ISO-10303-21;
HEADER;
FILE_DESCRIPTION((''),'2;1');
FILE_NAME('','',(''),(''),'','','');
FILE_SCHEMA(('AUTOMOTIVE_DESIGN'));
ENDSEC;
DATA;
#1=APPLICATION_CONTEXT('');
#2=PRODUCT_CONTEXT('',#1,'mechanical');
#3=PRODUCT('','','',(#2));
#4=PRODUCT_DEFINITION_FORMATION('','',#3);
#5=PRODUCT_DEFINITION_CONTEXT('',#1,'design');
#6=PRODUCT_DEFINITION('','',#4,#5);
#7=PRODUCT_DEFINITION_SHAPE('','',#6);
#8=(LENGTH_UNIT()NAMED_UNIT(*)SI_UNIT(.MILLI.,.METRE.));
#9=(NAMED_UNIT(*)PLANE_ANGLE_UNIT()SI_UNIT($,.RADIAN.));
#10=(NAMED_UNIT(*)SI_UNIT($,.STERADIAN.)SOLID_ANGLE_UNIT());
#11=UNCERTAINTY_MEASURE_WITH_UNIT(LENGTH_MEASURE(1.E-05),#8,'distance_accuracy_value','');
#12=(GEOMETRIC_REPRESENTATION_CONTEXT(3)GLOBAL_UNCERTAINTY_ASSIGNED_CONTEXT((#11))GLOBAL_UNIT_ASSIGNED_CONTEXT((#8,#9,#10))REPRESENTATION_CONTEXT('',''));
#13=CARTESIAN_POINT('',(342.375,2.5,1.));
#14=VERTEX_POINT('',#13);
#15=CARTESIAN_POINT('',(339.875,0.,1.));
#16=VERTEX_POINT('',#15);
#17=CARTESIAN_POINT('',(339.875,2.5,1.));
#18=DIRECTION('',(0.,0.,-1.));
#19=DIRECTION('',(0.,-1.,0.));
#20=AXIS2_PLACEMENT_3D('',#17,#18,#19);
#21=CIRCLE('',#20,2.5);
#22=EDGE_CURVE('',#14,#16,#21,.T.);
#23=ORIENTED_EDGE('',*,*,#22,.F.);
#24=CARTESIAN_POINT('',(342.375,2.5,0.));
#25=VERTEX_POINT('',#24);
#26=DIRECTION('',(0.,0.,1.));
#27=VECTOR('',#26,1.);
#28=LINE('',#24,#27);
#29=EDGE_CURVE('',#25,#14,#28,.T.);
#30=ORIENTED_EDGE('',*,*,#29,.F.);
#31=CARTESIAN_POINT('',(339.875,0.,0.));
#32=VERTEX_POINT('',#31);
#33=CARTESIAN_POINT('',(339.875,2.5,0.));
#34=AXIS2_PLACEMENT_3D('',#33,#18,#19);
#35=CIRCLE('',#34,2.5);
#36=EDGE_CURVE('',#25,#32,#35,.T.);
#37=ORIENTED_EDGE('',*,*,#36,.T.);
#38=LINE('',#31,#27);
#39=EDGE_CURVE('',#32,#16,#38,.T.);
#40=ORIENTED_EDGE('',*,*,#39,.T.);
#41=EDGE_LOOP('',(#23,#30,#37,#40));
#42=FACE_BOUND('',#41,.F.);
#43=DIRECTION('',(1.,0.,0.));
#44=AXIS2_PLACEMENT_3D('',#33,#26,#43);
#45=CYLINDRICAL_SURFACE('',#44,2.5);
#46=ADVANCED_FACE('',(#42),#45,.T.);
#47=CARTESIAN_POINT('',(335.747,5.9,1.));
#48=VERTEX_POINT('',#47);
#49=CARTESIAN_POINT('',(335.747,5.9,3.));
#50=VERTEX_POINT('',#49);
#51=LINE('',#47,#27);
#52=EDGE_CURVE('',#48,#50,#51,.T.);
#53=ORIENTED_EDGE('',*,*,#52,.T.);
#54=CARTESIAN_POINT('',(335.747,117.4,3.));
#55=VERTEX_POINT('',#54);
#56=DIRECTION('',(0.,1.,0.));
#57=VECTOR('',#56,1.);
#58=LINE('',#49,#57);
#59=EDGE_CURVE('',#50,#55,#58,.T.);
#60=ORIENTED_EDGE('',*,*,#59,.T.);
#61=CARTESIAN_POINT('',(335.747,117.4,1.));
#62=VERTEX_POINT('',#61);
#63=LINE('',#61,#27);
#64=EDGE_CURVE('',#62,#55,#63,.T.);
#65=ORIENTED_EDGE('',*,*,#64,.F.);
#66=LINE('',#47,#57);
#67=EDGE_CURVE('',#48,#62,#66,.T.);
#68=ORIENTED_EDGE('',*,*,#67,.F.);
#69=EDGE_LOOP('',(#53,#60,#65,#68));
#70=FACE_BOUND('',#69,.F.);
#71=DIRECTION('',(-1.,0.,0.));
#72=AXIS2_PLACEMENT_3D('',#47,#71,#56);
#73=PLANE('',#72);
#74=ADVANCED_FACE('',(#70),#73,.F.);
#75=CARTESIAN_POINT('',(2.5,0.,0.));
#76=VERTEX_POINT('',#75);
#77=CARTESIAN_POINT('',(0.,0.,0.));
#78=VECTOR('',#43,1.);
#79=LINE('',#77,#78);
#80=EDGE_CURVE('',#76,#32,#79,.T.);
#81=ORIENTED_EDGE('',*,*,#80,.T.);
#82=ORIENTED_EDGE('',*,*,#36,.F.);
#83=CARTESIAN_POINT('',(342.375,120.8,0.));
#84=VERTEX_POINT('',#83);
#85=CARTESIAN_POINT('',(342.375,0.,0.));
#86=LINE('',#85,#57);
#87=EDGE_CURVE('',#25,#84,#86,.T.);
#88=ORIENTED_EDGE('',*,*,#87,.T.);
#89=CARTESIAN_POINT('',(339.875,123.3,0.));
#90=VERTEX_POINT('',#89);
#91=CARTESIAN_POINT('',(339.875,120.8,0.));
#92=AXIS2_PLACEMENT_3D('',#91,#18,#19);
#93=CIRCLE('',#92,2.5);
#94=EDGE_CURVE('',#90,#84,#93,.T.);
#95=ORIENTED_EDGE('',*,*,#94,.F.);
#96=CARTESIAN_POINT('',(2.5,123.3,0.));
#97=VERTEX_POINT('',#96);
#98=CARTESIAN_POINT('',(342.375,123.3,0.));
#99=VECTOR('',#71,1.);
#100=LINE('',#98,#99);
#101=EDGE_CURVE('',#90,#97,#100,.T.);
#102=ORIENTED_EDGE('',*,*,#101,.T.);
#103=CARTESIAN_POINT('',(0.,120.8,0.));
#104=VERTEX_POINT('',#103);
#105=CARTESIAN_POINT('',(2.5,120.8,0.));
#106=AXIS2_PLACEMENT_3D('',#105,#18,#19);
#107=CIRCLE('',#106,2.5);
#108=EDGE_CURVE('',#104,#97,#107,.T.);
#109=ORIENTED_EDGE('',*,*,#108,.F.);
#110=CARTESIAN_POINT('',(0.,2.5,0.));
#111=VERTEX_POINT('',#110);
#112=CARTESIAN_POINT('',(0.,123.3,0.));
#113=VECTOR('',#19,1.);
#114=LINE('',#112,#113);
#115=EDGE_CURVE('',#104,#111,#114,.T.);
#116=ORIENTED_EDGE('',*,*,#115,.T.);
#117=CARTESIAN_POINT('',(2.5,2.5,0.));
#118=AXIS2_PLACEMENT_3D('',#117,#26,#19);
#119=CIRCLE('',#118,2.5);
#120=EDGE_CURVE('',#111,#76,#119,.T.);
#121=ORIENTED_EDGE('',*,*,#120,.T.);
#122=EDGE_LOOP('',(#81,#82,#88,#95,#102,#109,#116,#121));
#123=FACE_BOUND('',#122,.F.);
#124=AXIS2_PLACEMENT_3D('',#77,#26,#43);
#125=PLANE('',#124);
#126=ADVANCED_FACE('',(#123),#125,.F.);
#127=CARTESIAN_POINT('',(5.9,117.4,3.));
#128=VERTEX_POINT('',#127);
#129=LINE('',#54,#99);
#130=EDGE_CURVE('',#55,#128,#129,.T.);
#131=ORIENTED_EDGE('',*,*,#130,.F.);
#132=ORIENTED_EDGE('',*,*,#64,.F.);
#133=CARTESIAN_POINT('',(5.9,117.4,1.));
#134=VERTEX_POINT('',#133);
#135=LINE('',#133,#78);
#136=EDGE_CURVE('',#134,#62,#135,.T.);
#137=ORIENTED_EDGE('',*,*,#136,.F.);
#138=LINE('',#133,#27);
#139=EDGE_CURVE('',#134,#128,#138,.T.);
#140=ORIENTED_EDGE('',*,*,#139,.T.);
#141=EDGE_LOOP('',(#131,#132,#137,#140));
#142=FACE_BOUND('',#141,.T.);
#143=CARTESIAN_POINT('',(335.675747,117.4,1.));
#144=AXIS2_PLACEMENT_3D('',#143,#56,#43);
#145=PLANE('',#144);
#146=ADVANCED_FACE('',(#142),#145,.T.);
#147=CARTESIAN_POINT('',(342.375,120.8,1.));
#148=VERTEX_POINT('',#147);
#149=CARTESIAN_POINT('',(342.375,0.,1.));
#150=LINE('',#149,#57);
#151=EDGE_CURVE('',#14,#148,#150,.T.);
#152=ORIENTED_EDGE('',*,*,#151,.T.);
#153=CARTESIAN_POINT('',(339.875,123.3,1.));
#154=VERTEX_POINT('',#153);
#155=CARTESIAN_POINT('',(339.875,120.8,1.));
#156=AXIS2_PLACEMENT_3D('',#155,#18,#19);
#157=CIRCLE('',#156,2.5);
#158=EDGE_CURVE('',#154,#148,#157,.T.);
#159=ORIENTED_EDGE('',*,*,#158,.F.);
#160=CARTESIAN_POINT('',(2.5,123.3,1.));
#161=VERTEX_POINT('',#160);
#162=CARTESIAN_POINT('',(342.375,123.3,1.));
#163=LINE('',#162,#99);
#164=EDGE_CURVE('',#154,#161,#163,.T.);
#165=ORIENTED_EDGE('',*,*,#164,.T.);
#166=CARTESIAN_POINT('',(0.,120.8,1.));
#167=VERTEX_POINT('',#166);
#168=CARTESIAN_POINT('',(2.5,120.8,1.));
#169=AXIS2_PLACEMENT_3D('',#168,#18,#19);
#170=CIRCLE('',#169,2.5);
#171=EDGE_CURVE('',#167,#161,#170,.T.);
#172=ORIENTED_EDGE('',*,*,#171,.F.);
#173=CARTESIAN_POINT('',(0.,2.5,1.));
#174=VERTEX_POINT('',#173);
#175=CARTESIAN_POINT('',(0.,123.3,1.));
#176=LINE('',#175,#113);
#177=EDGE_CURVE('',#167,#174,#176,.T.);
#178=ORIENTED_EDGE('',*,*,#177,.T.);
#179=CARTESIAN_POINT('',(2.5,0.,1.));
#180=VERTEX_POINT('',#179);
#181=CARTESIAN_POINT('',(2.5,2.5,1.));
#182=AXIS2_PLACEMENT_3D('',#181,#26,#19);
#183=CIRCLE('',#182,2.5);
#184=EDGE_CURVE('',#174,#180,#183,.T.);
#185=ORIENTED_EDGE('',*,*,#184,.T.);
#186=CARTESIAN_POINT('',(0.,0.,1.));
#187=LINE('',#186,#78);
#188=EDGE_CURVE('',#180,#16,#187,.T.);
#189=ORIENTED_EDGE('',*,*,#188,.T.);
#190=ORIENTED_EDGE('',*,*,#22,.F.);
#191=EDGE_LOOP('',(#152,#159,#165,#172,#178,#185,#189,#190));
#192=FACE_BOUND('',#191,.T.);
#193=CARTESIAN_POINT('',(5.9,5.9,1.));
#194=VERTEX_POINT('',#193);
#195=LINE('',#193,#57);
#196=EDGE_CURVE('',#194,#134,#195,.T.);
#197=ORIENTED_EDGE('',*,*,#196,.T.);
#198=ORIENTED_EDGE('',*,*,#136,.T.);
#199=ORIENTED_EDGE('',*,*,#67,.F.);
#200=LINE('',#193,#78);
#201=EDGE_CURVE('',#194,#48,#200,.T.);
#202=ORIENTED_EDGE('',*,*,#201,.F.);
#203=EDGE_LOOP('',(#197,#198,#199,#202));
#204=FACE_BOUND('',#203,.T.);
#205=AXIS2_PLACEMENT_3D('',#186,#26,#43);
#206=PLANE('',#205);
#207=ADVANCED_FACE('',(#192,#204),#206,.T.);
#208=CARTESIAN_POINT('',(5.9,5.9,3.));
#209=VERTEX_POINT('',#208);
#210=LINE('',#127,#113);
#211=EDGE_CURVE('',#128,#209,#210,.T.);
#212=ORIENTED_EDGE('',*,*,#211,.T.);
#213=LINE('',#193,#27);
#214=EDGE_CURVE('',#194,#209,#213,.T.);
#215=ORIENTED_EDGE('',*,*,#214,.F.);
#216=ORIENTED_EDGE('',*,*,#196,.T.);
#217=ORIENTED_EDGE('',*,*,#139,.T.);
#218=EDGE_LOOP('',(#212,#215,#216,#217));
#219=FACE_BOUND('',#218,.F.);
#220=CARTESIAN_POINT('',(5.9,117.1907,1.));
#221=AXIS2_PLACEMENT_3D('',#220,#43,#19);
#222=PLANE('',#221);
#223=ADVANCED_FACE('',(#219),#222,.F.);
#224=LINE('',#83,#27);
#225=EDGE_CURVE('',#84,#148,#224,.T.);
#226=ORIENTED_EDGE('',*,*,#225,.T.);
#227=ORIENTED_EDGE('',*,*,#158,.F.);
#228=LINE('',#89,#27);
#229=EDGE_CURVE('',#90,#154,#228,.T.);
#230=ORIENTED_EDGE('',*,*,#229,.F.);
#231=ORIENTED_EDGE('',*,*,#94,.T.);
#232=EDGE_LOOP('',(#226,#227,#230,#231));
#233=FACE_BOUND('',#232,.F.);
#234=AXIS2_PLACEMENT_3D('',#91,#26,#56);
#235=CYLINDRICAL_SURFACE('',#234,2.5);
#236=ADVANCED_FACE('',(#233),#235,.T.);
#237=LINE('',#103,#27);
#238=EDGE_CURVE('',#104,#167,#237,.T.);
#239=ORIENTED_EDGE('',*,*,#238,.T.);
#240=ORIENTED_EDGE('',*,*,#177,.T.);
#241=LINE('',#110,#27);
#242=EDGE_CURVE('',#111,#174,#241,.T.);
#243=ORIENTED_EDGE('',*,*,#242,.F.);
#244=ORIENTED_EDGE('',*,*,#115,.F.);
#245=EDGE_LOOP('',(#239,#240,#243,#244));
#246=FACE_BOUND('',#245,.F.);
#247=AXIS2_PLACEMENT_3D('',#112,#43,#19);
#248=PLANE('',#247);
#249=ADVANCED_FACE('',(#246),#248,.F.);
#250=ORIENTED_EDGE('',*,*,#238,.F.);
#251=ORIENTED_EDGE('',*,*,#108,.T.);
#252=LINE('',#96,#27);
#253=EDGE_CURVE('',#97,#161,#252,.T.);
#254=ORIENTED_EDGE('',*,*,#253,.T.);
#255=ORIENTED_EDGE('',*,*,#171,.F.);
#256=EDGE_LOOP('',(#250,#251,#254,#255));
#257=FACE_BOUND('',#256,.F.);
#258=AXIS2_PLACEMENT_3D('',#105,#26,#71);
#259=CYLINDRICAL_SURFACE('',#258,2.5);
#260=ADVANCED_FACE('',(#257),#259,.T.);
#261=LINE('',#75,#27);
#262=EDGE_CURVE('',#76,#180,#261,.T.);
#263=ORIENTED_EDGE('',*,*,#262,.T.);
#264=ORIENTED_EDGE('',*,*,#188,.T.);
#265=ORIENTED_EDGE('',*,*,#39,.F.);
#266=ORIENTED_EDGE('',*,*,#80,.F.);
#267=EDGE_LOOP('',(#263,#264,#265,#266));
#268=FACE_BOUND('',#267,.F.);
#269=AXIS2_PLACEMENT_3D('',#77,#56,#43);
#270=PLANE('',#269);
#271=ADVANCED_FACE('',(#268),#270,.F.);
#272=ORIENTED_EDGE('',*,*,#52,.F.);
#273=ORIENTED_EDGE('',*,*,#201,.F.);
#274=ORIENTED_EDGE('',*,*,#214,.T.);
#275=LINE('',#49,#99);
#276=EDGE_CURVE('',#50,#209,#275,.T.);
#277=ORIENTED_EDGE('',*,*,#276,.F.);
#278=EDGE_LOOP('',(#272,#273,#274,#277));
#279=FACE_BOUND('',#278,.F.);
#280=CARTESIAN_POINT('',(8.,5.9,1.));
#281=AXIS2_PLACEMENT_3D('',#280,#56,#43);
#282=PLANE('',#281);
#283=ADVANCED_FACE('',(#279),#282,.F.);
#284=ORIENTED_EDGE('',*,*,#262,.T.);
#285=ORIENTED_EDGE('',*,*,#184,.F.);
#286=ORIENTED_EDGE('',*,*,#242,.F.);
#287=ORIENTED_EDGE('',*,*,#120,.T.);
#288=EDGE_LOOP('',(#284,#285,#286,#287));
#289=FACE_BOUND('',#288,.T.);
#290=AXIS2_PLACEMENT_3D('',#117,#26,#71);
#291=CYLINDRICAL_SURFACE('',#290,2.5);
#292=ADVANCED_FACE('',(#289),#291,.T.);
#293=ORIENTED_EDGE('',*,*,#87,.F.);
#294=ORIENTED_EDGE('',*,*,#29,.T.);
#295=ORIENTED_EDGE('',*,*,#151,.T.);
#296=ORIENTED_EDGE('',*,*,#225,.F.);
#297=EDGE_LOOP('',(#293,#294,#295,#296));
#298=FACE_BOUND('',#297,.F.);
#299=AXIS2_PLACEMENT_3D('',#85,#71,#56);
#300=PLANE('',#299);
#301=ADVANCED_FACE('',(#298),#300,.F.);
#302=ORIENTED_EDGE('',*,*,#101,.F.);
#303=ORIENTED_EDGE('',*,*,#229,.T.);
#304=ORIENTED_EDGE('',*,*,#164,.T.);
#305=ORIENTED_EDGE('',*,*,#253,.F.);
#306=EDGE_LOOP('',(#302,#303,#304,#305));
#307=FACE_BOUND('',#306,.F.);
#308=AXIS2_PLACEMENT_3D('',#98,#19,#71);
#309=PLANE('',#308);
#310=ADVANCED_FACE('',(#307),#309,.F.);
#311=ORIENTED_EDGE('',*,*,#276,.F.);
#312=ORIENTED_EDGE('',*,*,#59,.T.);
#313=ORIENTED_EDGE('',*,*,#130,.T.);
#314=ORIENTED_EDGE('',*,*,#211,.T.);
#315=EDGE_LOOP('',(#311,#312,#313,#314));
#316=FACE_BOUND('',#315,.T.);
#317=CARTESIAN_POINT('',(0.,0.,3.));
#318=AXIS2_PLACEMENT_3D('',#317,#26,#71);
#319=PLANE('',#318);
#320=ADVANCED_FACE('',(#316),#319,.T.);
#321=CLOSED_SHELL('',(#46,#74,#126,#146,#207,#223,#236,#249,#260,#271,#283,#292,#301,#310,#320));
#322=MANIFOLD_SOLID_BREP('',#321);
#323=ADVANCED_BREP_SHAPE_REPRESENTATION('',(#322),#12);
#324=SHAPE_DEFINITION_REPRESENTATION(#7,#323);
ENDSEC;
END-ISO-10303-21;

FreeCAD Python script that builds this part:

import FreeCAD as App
import Part
import Sketcher
from FreeCAD import Vector
Q = App.Units.Quantity


def edges_at(feature, points):
    """Names of the edges that pass closest to the given points."""
    edges = feature.Shape.Edges
    near = lambda p: min(range(len(edges)), key=lambda i: edges[i].distToShape(Part.Vertex(*p))[0])
    return sorted({f"Edge{near(p) + 1}" for p in points})


def add_polygon(sketch, points):
    """Adds a closed chain of lines whose ends are joined by coincident constraints."""
    first, n = sketch.GeometryCount, len(points)
    for a, b in zip(points, points[1:] + points[:1]):
        sketch.addGeometry(Part.LineSegment(App.Vector(*a, 0), App.Vector(*b, 0)), False)
    for i in range(n):
        sketch.addConstraint(Sketcher.Constraint("Coincident", first + i, 2, first + (i + 1) % n, 1))

doc = App.newDocument("Part")
body = doc.addObject("PartDesign::Body", "Body")

sketch1 = body.newObject("Sketcher::SketchObject", "Sketch")
sketch1.AttachmentSupport = (doc.getObject("XY_Plane"), [""])
sketch1.MapMode = "FlatFace"
add_polygon(sketch1, [(0, 123), (0, 0), (342, 0), (342, 123)])
sketch1.addConstraint([
    Sketcher.Constraint("Vertical", 0),
    Sketcher.Constraint("Horizontal", 1),
    Sketcher.Constraint("Vertical", 2),
    Sketcher.Constraint("Horizontal", 3),
    Sketcher.Constraint("Coincident", 0, 2, -1, 1),
    Sketcher.Constraint("DistanceY", 0, 2, 0, 1, Q("123.3 mm")),
    Sketcher.Constraint("DistanceX", 1, 1, 1, 2, Q("342.375 mm")),
])
pad1 = body.newObject("PartDesign::Pad", "Pad")
pad1.Profile = sketch1
pad1.Length = 1
doc.recompute()

fillet = body.newObject("PartDesign::Fillet", "Fillet")
fillet.Base = (pad1, edges_at(pad1, [
    (0, 0, 0.5),
    (342.375, 0, 0.5),
    (342.375, 123.3, 0.5),
    (0, 123.3, 0.5),
]))
fillet.Radius = 2.5

sketch2 = body.newObject("Sketcher::SketchObject", "Sketch001")
sketch2.AttachmentSupport = (doc.getObject("XY_Plane"), [""])
sketch2.MapMode = "FlatFace"
sketch2.AttachmentOffset = App.Placement(Vector(0, 0, 1), App.Rotation())
add_polygon(sketch2, [(336, 6), (336, 117), (6, 117), (6, 6)])
sketch2.addConstraint([
    Sketcher.Constraint("Vertical", 0),
    Sketcher.Constraint("Horizontal", 1),
    Sketcher.Constraint("Vertical", 2),
    Sketcher.Constraint("Horizontal", 3),
    Sketcher.Constraint("DistanceY", 0, 1, 0, 2, Q("111.5 mm")),
    Sketcher.Constraint("DistanceY", -1, 1, 0, 2, Q("117.4 mm")),
    Sketcher.Constraint("DistanceX", -1, 1, 1, 2, Q("5.9 mm")),
    Sketcher.Constraint("DistanceX", 1, 2, 1, 1, Q("329.847 mm")),
])
pad2 = body.newObject("PartDesign::Pad", "Pad001")
pad2.Profile = sketch2
pad2.Length = 2

doc.recompute()
